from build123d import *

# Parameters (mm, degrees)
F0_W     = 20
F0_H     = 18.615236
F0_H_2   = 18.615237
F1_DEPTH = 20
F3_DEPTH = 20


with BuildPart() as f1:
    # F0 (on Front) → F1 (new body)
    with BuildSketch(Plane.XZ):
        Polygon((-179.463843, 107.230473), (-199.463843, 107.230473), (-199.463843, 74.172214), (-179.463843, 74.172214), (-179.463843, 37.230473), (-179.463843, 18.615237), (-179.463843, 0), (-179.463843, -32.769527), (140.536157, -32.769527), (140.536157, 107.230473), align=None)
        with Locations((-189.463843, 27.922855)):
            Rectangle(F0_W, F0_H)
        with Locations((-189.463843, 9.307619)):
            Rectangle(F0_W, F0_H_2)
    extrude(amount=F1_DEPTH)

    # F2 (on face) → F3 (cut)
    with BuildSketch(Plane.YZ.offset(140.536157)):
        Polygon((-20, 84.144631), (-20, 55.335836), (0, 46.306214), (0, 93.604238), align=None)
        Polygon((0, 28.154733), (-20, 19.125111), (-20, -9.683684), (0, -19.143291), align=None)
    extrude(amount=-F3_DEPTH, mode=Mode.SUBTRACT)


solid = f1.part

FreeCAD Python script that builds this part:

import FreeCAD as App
import Part
import Sketcher

doc = App.newDocument("Part")
body = doc.addObject("PartDesign::Body", "Body")

sketch1 = body.newObject("Sketcher::SketchObject", "Sketch")
sketch1.AttachmentSupport = (doc.getObject("XZ_Plane"), [""])
sketch1.MapMode = "FlatFace"
sketch1.addGeometry(Part.LineSegment(App.Vector(141, 107, 0), App.Vector(-199, 107, 0)), False)
sketch1.addGeometry(Part.LineSegment(App.Vector(-199, 107, 0), App.Vector(-199, 74, 0)), False)
sketch1.addGeometry(Part.LineSegment(App.Vector(-199, 74, 0), App.Vector(-179, 74, 0)), False)
sketch1.addGeometry(Part.LineSegment(App.Vector(-179, 74, 0), App.Vector(-179, 37, 0)), False)
sketch1.addGeometry(Part.LineSegment(App.Vector(-179, 37, 0), App.Vector(-199, 37, 0)), False)
sketch1.addGeometry(Part.LineSegment(App.Vector(-199, 37, 0), App.Vector(-199, 0, 0)), False)
sketch1.addGeometry(Part.LineSegment(App.Vector(-199, 0, 0), App.Vector(-179, 0, 0)), False)
sketch1.addGeometry(Part.LineSegment(App.Vector(-179, 0, 0), App.Vector(-179, -33, 0)), False)
sketch1.addGeometry(Part.LineSegment(App.Vector(-179, -33, 0), App.Vector(141, -33, 0)), False)
sketch1.addGeometry(Part.LineSegment(App.Vector(141, -33, 0), App.Vector(141, 107, 0)), False)
sketch1.addConstraint(Sketcher.Constraint("Coincident", 0, 2, 1, 1))
sketch1.addConstraint(Sketcher.Constraint("Coincident", 1, 2, 2, 1))
sketch1.addConstraint(Sketcher.Constraint("Coincident", 2, 2, 3, 1))
sketch1.addConstraint(Sketcher.Constraint("Coincident", 3, 2, 4, 1))
sketch1.addConstraint(Sketcher.Constraint("Coincident", 4, 2, 5, 1))
sketch1.addConstraint(Sketcher.Constraint("Coincident", 5, 2, 6, 1))
sketch1.addConstraint(Sketcher.Constraint("Coincident", 6, 2, 7, 1))
sketch1.addConstraint(Sketcher.Constraint("Coincident", 7, 2, 8, 1))
sketch1.addConstraint(Sketcher.Constraint("Coincident", 8, 2, 9, 1))
sketch1.addConstraint(Sketcher.Constraint("Coincident", 9, 2, 0, 1))
sketch1.addConstraint(Sketcher.Constraint("Horizontal", 0))
sketch1.addConstraint(Sketcher.Constraint("Vertical", 1))
sketch1.addConstraint(Sketcher.Constraint("Horizontal", 2))
sketch1.addConstraint(Sketcher.Constraint("Vertical", 3))
sketch1.addConstraint(Sketcher.Constraint("Horizontal", 4))
sketch1.addConstraint(Sketcher.Constraint("Vertical", 5))
sketch1.addConstraint(Sketcher.Constraint("Horizontal", 6))
sketch1.addConstraint(Sketcher.Constraint("Vertical", 7))
sketch1.addConstraint(Sketcher.Constraint("Horizontal", 8))
sketch1.addConstraint(Sketcher.Constraint("Vertical", 9))
sketch1.addConstraint(Sketcher.Constraint("PointOnObject", 5, 2, -1))
sketch1.addConstraint(Sketcher.Constraint("Vertical", 1, 2, 4, 2))
sketch1.addConstraint(Sketcher.Constraint("Vertical", 3, 2, 6, 2))
sketch1.addConstraint(Sketcher.Constraint("DistanceX", 0, 2, 0, 1, 340.0))
sketch1.addConstraint(Sketcher.Constraint("DistanceX", 2, 1, 2, 2, 20.0))
sketch1.addConstraint(Sketcher.Constraint("DistanceY", 9, 1, 9, 2, 140.0))
sketch1.addConstraint(Sketcher.Constraint("DistanceY", 3, 2, 0, 2, 70.0))
sketch1.addConstraint(Sketcher.Constraint("DistanceY", 1, 2, 1, 1, 33.058259))
sketch1.addConstraint(Sketcher.Constraint("DistanceY", 5, 2, 5, 1, 37.230473))
sketch1.addConstraint(Sketcher.Constraint("DistanceX", 0, 2, -1, 1, 199.463843))
pad1 = body.newObject("PartDesign::Pad", "Pad")
pad1.Profile = sketch1
pad1.Length = 20

sketch2 = body.newObject("Sketcher::SketchObject", "Sketch001")
sketch2.AttachmentSupport = (doc.getObject("YZ_Plane"), [""])
sketch2.MapMode = "FlatFace"
sketch2.AttachmentOffset = App.Placement(App.Vector(0, 0, 140.536157), App.Rotation())
sketch2.addGeometry(Part.LineSegment(App.Vector(-20, 84, 0), App.Vector(-20, 55, 0)), False)
sketch2.addGeometry(Part.LineSegment(App.Vector(-20, 55, 0), App.Vector(0, 46, 0)), False)
sketch2.addGeometry(Part.LineSegment(App.Vector(0, 46, 0), App.Vector(0, 94, 0)), False)
sketch2.addGeometry(Part.LineSegment(App.Vector(0, 94, 0), App.Vector(-20, 84, 0)), False)
sketch2.addGeometry(Part.LineSegment(App.Vector(0, 28, 0), App.Vector(-20, 19, 0)), False)
sketch2.addGeometry(Part.LineSegment(App.Vector(-20, 19, 0), App.Vector(-20, -10, 0)), False)
sketch2.addGeometry(Part.LineSegment(App.Vector(-20, -10, 0), App.Vector(0, -19, 0)), False)
sketch2.addGeometry(Part.LineSegment(App.Vector(0, -19, 0), App.Vector(0, 28, 0)), False)
sketch2.addConstraint(Sketcher.Constraint("Coincident", 0, 2, 1, 1))
sketch2.addConstraint(Sketcher.Constraint("Coincident", 1, 2, 2, 1))
sketch2.addConstraint(Sketcher.Constraint("Coincident", 2, 2, 3, 1))
sketch2.addConstraint(Sketcher.Constraint("Coincident", 3, 2, 0, 1))
sketch2.addConstraint(Sketcher.Constraint("Coincident", 4, 2, 5, 1))
sketch2.addConstraint(Sketcher.Constraint("Coincident", 5, 2, 6, 1))
sketch2.addConstraint(Sketcher.Constraint("Coincident", 6, 2, 7, 1))
sketch2.addConstraint(Sketcher.Constraint("Coincident", 7, 2, 4, 1))
sketch2.addConstraint(Sketcher.Constraint("Vertical", 0))
sketch2.addConstraint(Sketcher.Constraint("Vertical", 2))
sketch2.addConstraint(Sketcher.Constraint("Vertical", 5))
sketch2.addConstraint(Sketcher.Constraint("Vertical", 7))
sketch2.addConstraint(Sketcher.Constraint("PointOnObject", 1, 2, -2))
sketch2.addConstraint(Sketcher.Constraint("PointOnObject", 6, 2, -2))
sketch2.addConstraint(Sketcher.Constraint("Vertical", 3, 2, 4, 2))
sketch2.addConstraint(Sketcher.Constraint("Equal", 0, 5))
sketch2.addConstraint(Sketcher.Constraint("Equal", 2, 7))
sketch2.addConstraint(Sketcher.Constraint("Equal", 1, 4))
sketch2.addConstraint(Sketcher.Constraint("DistanceX", 0, 2, -1, 1, 20.0))
sketch2.addConstraint(Sketcher.Constraint("DistanceY", 0, 2, 2, 2, 38.268402))
sketch2.addConstraint(Sketcher.Constraint("Distance", 3, 22.124289))
sketch2.addConstraint(Sketcher.Constraint("DistanceY", 2, 1, 2, 2, 47.298024))
sketch2.addConstraint(Sketcher.Constraint("DistanceY", -1, 1, 3, 2, 84.144631))
sketch2.addConstraint(Sketcher.Constraint("DistanceY", -1, 1, 4, 2, 19.125111))
pocket1 = body.newObject("PartDesign::Pocket", "Pocket")
pocket1.Profile = sketch2
pocket1.Length = 20

doc.recompute()
